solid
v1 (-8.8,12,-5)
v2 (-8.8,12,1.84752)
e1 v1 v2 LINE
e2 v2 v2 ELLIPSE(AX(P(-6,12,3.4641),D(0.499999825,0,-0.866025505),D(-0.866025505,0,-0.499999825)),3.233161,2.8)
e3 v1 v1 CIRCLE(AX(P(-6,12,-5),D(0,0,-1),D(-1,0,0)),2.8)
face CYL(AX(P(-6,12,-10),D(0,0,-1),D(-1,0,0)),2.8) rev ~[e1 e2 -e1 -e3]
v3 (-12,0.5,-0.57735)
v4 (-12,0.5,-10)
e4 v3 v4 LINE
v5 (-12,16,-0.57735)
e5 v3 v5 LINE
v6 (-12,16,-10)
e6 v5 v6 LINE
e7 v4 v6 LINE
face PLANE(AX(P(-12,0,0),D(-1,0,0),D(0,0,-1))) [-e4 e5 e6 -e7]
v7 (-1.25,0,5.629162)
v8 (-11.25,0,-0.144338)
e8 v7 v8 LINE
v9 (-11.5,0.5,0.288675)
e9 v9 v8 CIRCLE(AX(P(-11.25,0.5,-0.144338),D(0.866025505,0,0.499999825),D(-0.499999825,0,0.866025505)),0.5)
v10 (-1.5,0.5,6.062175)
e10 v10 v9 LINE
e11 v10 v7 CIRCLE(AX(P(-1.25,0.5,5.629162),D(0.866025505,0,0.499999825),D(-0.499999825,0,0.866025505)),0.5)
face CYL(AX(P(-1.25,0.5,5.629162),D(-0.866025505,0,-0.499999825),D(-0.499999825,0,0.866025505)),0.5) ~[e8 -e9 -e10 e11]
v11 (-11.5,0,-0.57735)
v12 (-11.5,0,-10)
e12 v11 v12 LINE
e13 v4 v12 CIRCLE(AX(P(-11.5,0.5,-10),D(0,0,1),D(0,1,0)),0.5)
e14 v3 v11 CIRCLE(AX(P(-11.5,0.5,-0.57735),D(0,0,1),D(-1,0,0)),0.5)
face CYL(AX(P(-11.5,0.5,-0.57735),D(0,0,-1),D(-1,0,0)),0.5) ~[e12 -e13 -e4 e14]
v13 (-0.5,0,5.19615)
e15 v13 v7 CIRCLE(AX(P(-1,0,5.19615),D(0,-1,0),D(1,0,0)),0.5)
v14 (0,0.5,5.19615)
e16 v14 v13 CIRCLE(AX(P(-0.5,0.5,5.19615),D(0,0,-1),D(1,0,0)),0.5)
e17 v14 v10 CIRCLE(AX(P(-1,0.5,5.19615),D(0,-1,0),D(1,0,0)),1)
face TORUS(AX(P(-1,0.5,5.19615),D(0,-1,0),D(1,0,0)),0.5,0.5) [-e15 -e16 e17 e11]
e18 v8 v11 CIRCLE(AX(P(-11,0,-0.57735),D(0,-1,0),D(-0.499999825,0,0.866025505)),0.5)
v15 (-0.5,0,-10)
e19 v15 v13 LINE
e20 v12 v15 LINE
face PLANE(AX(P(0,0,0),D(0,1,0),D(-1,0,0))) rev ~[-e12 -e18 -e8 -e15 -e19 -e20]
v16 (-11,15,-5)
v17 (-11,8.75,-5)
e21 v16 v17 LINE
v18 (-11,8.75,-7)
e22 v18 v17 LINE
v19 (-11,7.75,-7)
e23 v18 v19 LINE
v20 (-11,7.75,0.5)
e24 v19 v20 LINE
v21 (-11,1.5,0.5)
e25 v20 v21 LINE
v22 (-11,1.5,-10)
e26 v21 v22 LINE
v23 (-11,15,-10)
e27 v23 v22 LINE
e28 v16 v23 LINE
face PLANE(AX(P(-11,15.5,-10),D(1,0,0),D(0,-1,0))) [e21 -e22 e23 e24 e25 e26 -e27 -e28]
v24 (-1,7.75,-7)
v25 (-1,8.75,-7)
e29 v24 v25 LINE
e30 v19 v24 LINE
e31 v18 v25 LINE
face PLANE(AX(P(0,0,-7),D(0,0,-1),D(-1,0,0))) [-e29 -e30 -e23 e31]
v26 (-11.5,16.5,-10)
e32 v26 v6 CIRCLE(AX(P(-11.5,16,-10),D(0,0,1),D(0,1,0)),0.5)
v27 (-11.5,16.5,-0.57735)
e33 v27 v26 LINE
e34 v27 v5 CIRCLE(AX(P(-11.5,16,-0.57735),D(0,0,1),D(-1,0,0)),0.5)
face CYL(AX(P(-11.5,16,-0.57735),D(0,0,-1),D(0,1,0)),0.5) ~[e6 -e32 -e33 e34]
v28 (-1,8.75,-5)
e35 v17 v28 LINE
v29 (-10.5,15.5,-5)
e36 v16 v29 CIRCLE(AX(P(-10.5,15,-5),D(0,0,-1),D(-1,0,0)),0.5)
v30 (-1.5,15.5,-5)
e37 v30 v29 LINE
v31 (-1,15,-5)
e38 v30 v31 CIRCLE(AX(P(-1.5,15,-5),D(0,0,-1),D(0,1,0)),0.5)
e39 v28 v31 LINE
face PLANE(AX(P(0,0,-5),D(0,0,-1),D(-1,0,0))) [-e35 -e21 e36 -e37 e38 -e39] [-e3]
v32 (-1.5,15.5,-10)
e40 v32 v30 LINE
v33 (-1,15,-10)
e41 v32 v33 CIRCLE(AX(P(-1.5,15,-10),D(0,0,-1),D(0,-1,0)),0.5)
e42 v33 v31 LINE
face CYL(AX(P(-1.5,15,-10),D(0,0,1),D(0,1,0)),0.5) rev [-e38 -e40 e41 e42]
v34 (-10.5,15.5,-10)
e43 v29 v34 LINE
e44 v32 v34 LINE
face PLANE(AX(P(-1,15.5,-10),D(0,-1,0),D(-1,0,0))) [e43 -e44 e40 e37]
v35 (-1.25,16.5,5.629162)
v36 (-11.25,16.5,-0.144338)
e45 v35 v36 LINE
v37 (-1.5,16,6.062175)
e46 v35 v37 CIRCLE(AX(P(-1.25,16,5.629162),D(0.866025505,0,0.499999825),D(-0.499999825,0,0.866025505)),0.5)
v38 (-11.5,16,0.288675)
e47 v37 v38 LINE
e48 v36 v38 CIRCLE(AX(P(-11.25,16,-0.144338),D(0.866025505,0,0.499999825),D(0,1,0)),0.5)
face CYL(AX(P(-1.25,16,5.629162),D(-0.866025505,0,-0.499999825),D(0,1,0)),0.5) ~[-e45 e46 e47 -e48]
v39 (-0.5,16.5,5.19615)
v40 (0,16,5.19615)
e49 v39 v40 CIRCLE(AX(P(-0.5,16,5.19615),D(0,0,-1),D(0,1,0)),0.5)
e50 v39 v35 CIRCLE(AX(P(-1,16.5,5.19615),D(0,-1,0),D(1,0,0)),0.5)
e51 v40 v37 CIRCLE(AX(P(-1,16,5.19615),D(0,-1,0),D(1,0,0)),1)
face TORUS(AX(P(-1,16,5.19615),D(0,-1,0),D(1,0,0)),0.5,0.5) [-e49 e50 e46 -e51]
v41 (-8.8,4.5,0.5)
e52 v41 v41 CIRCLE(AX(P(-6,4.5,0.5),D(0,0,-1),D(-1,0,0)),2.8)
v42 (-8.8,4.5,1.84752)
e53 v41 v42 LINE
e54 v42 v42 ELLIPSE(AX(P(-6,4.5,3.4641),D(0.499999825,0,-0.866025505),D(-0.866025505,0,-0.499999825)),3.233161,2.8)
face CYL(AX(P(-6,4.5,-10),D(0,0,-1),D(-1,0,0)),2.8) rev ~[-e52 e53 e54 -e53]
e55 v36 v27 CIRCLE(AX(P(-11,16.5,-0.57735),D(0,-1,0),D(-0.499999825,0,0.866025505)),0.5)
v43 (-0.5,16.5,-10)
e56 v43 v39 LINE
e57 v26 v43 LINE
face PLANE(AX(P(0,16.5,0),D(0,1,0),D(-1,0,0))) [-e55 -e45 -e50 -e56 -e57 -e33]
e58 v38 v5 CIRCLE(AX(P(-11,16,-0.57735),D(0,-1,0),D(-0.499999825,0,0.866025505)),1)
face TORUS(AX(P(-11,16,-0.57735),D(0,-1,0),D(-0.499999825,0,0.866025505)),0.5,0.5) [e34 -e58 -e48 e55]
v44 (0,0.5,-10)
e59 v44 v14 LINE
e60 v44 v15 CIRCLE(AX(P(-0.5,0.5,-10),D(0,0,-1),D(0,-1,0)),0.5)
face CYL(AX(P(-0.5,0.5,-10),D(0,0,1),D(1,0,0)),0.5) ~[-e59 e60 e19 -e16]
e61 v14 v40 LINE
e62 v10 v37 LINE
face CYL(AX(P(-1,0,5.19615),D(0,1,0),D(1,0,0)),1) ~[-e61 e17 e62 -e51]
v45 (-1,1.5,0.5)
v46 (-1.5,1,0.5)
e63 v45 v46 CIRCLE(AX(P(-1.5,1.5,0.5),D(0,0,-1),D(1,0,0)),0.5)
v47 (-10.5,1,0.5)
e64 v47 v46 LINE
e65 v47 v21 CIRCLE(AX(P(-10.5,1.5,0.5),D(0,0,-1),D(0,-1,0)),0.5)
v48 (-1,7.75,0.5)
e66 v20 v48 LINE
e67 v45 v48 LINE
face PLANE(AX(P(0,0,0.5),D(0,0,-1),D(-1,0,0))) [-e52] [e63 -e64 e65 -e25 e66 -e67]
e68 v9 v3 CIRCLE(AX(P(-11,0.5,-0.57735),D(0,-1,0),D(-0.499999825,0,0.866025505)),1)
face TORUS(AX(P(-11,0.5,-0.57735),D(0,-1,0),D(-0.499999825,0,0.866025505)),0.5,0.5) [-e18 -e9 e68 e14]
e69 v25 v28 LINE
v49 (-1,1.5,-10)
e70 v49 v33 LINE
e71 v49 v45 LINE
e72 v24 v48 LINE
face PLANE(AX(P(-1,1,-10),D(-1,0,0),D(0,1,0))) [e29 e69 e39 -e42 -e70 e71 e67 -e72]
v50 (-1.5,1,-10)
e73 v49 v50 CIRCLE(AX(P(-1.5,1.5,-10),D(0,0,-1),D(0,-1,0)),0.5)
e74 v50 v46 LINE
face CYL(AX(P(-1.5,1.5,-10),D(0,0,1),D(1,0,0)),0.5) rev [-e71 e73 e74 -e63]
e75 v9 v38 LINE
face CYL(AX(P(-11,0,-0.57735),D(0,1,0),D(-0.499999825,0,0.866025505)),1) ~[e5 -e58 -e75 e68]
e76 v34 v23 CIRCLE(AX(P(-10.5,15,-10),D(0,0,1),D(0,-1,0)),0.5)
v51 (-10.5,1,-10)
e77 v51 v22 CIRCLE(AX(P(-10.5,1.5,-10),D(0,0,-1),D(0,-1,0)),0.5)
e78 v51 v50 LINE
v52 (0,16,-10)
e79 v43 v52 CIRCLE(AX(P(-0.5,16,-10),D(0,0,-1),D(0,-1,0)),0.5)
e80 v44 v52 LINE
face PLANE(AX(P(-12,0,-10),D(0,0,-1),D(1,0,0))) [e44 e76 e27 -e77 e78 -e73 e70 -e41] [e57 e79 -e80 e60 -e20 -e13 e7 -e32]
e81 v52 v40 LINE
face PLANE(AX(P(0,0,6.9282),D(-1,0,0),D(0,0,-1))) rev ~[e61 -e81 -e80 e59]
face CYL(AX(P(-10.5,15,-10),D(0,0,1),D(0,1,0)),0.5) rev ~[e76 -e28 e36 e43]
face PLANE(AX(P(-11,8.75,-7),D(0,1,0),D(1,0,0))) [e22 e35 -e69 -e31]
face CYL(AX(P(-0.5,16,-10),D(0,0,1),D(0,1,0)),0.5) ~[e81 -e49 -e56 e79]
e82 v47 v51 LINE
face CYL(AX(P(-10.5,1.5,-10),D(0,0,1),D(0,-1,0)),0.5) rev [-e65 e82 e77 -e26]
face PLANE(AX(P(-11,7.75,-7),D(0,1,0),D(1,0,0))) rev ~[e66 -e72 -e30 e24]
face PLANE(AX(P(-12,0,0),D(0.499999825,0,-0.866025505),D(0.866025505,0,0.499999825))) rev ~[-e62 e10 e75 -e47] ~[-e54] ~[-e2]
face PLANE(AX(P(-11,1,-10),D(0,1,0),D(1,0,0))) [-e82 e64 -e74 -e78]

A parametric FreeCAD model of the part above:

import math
import FreeCAD as App
import Part
import Sketcher

V = App.Vector
Q = App.Units.Quantity


def edges_at(feature, points):
    """Names of the edges that pass closest to the given points."""
    edges = feature.Shape.Edges
    near = lambda p: min(range(len(edges)), key=lambda i: edges[i].distToShape(Part.Vertex(*p))[0])
    return sorted({f"Edge{near(p) + 1}" for p in points})


def add_polygon(sketch, points):
    """Adds a closed chain of lines whose ends are joined by coincident constraints."""
    first, n = sketch.GeometryCount, len(points)
    for a, b in zip(points, points[1:] + points[:1]):
        sketch.addGeometry(Part.LineSegment(App.Vector(*a, 0), App.Vector(*b, 0)), False)
    for i in range(n):
        sketch.addConstraint(Sketcher.Constraint("Coincident", first + i, 2, first + (i + 1) % n, 1))

doc = App.newDocument("Part")
params = doc.addObject("Spreadsheet::Sheet", "Params")
for row, (alias, value) in enumerate([
    ("sketch1_width", "12 mm"),
    ("sketch1_height", "10 mm"),
    ("pad1_length", "16.5 mm"),
    ("sketch2_diameter", "5.6 mm"),
    ("fillet_radius", "1 mm"),
    ("sketch3_diameter", "5.6 mm"),
    ("sketch3_width", "10 mm"),
    ("sketch3_height", "14.5 mm"),
    ("pocket2_length", "3 mm"),
    ("fillet2_radius", "0.5 mm"),
    ("sketch4_diameter", "5.6 mm"),
    ("sketch4_radius", "0.5 mm"),
    ("sketch4_width", "9 mm"),
    ("pocket3_length", "7.5 mm"),
    ("sketch5_diameter", "5.6 mm"),
    ("sketch5_radius", "0.5 mm"),
    ("sketch5_width", "10 mm"),
    ("pocket4_length", "2 mm"),
], start=1):
    params.set(f"A{row}", alias)
    params.set(f"B{row}", "=" + value)
    params.setAlias(f"B{row}", alias)

body = doc.addObject("PartDesign::Body", "Body")

sketch1 = body.newObject("Sketcher::SketchObject", "Sketch")
sketch1.AttachmentSupport = (doc.getObject("XZ_Plane"), [""])
sketch1.MapMode = "FlatFace"
add_polygon(sketch1, [(0, 7), (0, -10), (-12, -10), (-12, 0)])
sketch1.addConstraint([
    Sketcher.Constraint("Vertical", 0),
    Sketcher.Constraint("Horizontal", 1),
    Sketcher.Constraint("Vertical", 2),
    Sketcher.Constraint("PointOnObject", 0, 2, -2),
    Sketcher.Constraint("PointOnObject", 2, 2, -1),
    Sketcher.Constraint("DistanceX", 1, 2, 1, 1, 12.0),
    Sketcher.Constraint("DistanceY", 2, 1, 2, 2, 10.0),
    Sketcher.Constraint("Angle", 3, Q("30 deg")),
])
sketch1.setExpression("Constraints[9]", "Params.sketch1_width")
sketch1.setExpression("Constraints[10]", "Params.sketch1_height")
pad1 = body.newObject("PartDesign::Pad", "Pad")
pad1.Profile = sketch1
pad1.setExpression("Length", "Params.pad1_length")
pad1.Reversed = True

sketch2 = body.newObject("Sketcher::SketchObject", "Sketch001")
sketch2.AttachmentSupport = (doc.getObject("XY_Plane"), [""])
sketch2.MapMode = "FlatFace"
sketch2.AttachmentOffset = App.Placement(V(0, 0, -10), App.Rotation())
sketch2.addGeometry([
    Part.Circle(V(-6, 4.5, 0), V(0, 0, 1), 2.8),
    Part.Circle(V(-6, 12, 0), V(0, 0, 1), 2.8),
], False)
sketch2.addConstraint([
    Sketcher.Constraint("Equal", 0, 1),
    Sketcher.Constraint("Vertical", 0, 3, 1, 3),
    Sketcher.Constraint("Diameter", 0, 5.6),
    Sketcher.Constraint("DistanceX", 0, 3, -1, 1, 6.0),
    Sketcher.Constraint("DistanceY", -1, 1, 0, 3, 4.5),
    Sketcher.Constraint("DistanceY", -1, 1, 1, 3, 12.0),
])
sketch2.setExpression("Constraints[2]", "Params.sketch2_diameter")
pocket1 = body.newObject("PartDesign::Pocket", "Pocket")
pocket1.Profile = sketch2
pocket1.Type = "ThroughAll"
pocket1.Reversed = True
doc.recompute()

fillet = body.newObject("PartDesign::Fillet", "Fillet")
fillet.Base = (pocket1, edges_at(pocket1, [(0, 8.25, 6.928), (-12, 8.25, 0)]))
fillet.setExpression("Radius", "Params.fillet_radius")

sketch3 = body.newObject("Sketcher::SketchObject", "Sketch002")
sketch3.AttachmentSupport = (doc.getObject("XY_Plane"), [""])
sketch3.MapMode = "FlatFace"
sketch3.AttachmentOffset = App.Placement(V(0, 0, -10), App.Rotation())
add_polygon(sketch3, [(-11, 1), (-11, 15.5), (-1, 15.5), (-1, 1)])
sketch3.addGeometry(Part.Circle(V(-6, 4.5, 0), V(0, 0, 1), 2.8), False)
sketch3.addGeometry(Part.Circle(V(-6, 12, 0), V(0, 0, 1), 2.8), False)
sketch3.addConstraint([
    Sketcher.Constraint("Vertical", 0),
    Sketcher.Constraint("Horizontal", 1),
    Sketcher.Constraint("Vertical", 2),
    Sketcher.Constraint("Horizontal", 3),
    Sketcher.Constraint("Equal", 4, 5),
    Sketcher.Constraint("Vertical", 4, 3, 5, 3),
    Sketcher.Constraint("DistanceX", 1, 2, -1, 1, 1.0),
    Sketcher.Constraint("DistanceY", -1, 1, 2, 2, 1.0),
    Sketcher.Constraint("Diameter", 4, 5.6),
    Sketcher.Constraint("DistanceX", 1, 1, 1, 2, 10.0),
    Sketcher.Constraint("DistanceY", 0, 1, 0, 2, 14.5),
    Sketcher.Constraint("DistanceX", 4, 3, -1, 1, 6.0),
    Sketcher.Constraint("DistanceY", -1, 1, 5, 3, 12.0),
    Sketcher.Constraint("DistanceY", 4, 3, 0, 2, 11.0),
])
sketch3.setExpression("Constraints[12]", "Params.sketch3_diameter")
sketch3.setExpression("Constraints[13]", "Params.sketch3_width")
sketch3.setExpression("Constraints[14]", "Params.sketch3_height")
pocket2 = body.newObject("PartDesign::Pocket", "Pocket001")
pocket2.Profile = sketch3
pocket2.setExpression("Length", "Params.pocket2_length")
pocket2.Reversed = True
doc.recompute()

fillet2 = body.newObject("PartDesign::Fillet", "Fillet001")
fillet2.Base = (pocket2, edges_at(pocket2, [
    (-0.5, 16.5, 6.062),
    (-6.5, 16.5, 3.175),
    (-11.866, 16.5, -0.077),
    (-12, 16.5, -5.289),
    (0, 16.5, -2.402),
    (-0.5, 0, 6.062),
    (0, 0, -2.402),
    (-11.866, 0, -0.077),
    (-12, 0, -5.289),
    (-6.5, 0, 3.175),
    (-1, 15.5, -8.5),
    (-11, 15.5, -8.5),
    (-11, 1, -8.5),
    (-1, 1, -8.5),
]))
fillet2.setExpression("Radius", "Params.fillet2_radius")

sketch4 = body.newObject("Sketcher::SketchObject", "Sketch003")
sketch4.AttachmentSupport = (doc.getObject("XY_Plane"), [""])
sketch4.MapMode = "FlatFace"
sketch4.AttachmentOffset = App.Placement(V(0, 0, -7), App.Rotation())
sketch4.addGeometry([
    Part.LineSegment(V(-1, 7.8, 0), V(-1, 1.5, 0)),
    Part.ArcOfCircle(Part.Circle(V(-1.5, 1.5, 0), V(0, 0, 1), 0.5), math.radians(-90), math.radians(0)),
    Part.LineSegment(V(-1.5, 1, 0), V(-10.5, 1, 0)),
    Part.ArcOfCircle(Part.Circle(V(-10.5, 1.5, 0), V(0, 0, 1), 0.5), math.radians(180), math.radians(270)),
    Part.LineSegment(V(-11, 1.5, 0), V(-11, 7.8, 0)),
    Part.LineSegment(V(-11, 7.8, 0), V(-1, 7.8, 0)),
    Part.Circle(V(-6, 4.5, 0), V(0, 0, 1), 2.8),
], False)
sketch4.addConstraint([
    Sketcher.Constraint("Tangent", 0, 2, 1, 2),
    Sketcher.Constraint("Tangent", 1, 1, 2, 1),
    Sketcher.Constraint("Tangent", 2, 2, 3, 2),
    Sketcher.Constraint("Tangent", 3, 1, 4, 1),
    Sketcher.Constraint("Coincident", 4, 2, 5, 1),
    Sketcher.Constraint("Coincident", 5, 2, 0, 1),
    Sketcher.Constraint("Vertical", 0),
    Sketcher.Constraint("Horizontal", 2),
    Sketcher.Constraint("Vertical", 4),
    Sketcher.Constraint("Horizontal", 5),
    Sketcher.Constraint("Equal", 1, 3),
    Sketcher.Constraint("Diameter", 6, 5.6),
    Sketcher.Constraint("Radius", 1, 0.5),
    Sketcher.Constraint("DistanceX", 2, 2, 2, 1, 9.0),
    Sketcher.Constraint("DistanceY", 2, 2, 4, 2, 6.75),
    Sketcher.Constraint("DistanceX", 6, 3, -1, 1, 6.0),
    Sketcher.Constraint("DistanceX", 0, 2, -1, 1, 1.0),
    Sketcher.Constraint("DistanceY", -1, 1, 1, 1, 1.0),
    Sketcher.Constraint("DistanceY", 1, 3, 6, 3, 3.0),
])
sketch4.setExpression("Constraints[11]", "Params.sketch4_diameter")
sketch4.setExpression("Constraints[12]", "Params.sketch4_radius")
sketch4.setExpression("Constraints[13]", "Params.sketch4_width")
pocket3 = body.newObject("PartDesign::Pocket", "Pocket002")
pocket3.Profile = sketch4
pocket3.setExpression("Length", "Params.pocket3_length")
pocket3.Reversed = True

sketch5 = body.newObject("Sketcher::SketchObject", "Sketch004")
sketch5.AttachmentSupport = (doc.getObject("XY_Plane"), [""])
sketch5.MapMode = "FlatFace"
sketch5.AttachmentOffset = App.Placement(V(0, 0, -7), App.Rotation())
sketch5.addGeometry([
    Part.LineSegment(V(-1, 15, 0), V(-1, 8.8, 0)),
    Part.LineSegment(V(-1, 8.8, 0), V(-11, 8.8, 0)),
    Part.LineSegment(V(-11, 8.8, 0), V(-11, 15, 0)),
    Part.ArcOfCircle(Part.Circle(V(-10.5, 15, 0), V(0, 0, 1), 0.5), math.radians(90), math.radians(180)),
    Part.LineSegment(V(-10.5, 15.5, 0), V(-1.5, 15.5, 0)),
    Part.ArcOfCircle(Part.Circle(V(-1.5, 15, 0), V(0, 0, 1), 0.5), math.radians(0), math.radians(90)),
    Part.Circle(V(-6, 12, 0), V(0, 0, 1), 2.8),
], False)
sketch5.addConstraint([
    Sketcher.Constraint("Coincident", 0, 2, 1, 1),
    Sketcher.Constraint("Coincident", 1, 2, 2, 1),
    Sketcher.Constraint("Tangent", 2, 2, 3, 2),
    Sketcher.Constraint("Tangent", 3, 1, 4, 1),
    Sketcher.Constraint("Tangent", 4, 2, 5, 2),
    Sketcher.Constraint("Tangent", 5, 1, 0, 1),
    Sketcher.Constraint("Vertical", 0),
    Sketcher.Constraint("Horizontal", 1),
    Sketcher.Constraint("Vertical", 2),
    Sketcher.Constraint("Horizontal", 4),
    Sketcher.Constraint("Equal", 3, 5),
    Sketcher.Constraint("Diameter", 6, 5.6),
    Sketcher.Constraint("Radius", 3, 0.5),
    Sketcher.Constraint("DistanceX", 1, 2, 1, 1, 10.0),
    Sketcher.Constraint("DistanceY", 1, 2, 3, 1, 6.75),
    Sketcher.Constraint("DistanceY", -1, 1, 3, 3, 15.0),
    Sketcher.Constraint("DistanceX", 6, 3, -1, 1, 6.0),
    Sketcher.Constraint("DistanceY", -1, 1, 6, 3, 12.0),
    Sketcher.Constraint("DistanceX", 0, 2, -1, 1, 1.0),
])
sketch5.setExpression("Constraints[11]", "Params.sketch5_diameter")
sketch5.setExpression("Constraints[12]", "Params.sketch5_radius")
sketch5.setExpression("Constraints[13]", "Params.sketch5_width")
pocket4 = body.newObject("PartDesign::Pocket", "Pocket003")
pocket4.Profile = sketch5
pocket4.setExpression("Length", "Params.pocket4_length")
pocket4.Reversed = True

doc.recompute()
